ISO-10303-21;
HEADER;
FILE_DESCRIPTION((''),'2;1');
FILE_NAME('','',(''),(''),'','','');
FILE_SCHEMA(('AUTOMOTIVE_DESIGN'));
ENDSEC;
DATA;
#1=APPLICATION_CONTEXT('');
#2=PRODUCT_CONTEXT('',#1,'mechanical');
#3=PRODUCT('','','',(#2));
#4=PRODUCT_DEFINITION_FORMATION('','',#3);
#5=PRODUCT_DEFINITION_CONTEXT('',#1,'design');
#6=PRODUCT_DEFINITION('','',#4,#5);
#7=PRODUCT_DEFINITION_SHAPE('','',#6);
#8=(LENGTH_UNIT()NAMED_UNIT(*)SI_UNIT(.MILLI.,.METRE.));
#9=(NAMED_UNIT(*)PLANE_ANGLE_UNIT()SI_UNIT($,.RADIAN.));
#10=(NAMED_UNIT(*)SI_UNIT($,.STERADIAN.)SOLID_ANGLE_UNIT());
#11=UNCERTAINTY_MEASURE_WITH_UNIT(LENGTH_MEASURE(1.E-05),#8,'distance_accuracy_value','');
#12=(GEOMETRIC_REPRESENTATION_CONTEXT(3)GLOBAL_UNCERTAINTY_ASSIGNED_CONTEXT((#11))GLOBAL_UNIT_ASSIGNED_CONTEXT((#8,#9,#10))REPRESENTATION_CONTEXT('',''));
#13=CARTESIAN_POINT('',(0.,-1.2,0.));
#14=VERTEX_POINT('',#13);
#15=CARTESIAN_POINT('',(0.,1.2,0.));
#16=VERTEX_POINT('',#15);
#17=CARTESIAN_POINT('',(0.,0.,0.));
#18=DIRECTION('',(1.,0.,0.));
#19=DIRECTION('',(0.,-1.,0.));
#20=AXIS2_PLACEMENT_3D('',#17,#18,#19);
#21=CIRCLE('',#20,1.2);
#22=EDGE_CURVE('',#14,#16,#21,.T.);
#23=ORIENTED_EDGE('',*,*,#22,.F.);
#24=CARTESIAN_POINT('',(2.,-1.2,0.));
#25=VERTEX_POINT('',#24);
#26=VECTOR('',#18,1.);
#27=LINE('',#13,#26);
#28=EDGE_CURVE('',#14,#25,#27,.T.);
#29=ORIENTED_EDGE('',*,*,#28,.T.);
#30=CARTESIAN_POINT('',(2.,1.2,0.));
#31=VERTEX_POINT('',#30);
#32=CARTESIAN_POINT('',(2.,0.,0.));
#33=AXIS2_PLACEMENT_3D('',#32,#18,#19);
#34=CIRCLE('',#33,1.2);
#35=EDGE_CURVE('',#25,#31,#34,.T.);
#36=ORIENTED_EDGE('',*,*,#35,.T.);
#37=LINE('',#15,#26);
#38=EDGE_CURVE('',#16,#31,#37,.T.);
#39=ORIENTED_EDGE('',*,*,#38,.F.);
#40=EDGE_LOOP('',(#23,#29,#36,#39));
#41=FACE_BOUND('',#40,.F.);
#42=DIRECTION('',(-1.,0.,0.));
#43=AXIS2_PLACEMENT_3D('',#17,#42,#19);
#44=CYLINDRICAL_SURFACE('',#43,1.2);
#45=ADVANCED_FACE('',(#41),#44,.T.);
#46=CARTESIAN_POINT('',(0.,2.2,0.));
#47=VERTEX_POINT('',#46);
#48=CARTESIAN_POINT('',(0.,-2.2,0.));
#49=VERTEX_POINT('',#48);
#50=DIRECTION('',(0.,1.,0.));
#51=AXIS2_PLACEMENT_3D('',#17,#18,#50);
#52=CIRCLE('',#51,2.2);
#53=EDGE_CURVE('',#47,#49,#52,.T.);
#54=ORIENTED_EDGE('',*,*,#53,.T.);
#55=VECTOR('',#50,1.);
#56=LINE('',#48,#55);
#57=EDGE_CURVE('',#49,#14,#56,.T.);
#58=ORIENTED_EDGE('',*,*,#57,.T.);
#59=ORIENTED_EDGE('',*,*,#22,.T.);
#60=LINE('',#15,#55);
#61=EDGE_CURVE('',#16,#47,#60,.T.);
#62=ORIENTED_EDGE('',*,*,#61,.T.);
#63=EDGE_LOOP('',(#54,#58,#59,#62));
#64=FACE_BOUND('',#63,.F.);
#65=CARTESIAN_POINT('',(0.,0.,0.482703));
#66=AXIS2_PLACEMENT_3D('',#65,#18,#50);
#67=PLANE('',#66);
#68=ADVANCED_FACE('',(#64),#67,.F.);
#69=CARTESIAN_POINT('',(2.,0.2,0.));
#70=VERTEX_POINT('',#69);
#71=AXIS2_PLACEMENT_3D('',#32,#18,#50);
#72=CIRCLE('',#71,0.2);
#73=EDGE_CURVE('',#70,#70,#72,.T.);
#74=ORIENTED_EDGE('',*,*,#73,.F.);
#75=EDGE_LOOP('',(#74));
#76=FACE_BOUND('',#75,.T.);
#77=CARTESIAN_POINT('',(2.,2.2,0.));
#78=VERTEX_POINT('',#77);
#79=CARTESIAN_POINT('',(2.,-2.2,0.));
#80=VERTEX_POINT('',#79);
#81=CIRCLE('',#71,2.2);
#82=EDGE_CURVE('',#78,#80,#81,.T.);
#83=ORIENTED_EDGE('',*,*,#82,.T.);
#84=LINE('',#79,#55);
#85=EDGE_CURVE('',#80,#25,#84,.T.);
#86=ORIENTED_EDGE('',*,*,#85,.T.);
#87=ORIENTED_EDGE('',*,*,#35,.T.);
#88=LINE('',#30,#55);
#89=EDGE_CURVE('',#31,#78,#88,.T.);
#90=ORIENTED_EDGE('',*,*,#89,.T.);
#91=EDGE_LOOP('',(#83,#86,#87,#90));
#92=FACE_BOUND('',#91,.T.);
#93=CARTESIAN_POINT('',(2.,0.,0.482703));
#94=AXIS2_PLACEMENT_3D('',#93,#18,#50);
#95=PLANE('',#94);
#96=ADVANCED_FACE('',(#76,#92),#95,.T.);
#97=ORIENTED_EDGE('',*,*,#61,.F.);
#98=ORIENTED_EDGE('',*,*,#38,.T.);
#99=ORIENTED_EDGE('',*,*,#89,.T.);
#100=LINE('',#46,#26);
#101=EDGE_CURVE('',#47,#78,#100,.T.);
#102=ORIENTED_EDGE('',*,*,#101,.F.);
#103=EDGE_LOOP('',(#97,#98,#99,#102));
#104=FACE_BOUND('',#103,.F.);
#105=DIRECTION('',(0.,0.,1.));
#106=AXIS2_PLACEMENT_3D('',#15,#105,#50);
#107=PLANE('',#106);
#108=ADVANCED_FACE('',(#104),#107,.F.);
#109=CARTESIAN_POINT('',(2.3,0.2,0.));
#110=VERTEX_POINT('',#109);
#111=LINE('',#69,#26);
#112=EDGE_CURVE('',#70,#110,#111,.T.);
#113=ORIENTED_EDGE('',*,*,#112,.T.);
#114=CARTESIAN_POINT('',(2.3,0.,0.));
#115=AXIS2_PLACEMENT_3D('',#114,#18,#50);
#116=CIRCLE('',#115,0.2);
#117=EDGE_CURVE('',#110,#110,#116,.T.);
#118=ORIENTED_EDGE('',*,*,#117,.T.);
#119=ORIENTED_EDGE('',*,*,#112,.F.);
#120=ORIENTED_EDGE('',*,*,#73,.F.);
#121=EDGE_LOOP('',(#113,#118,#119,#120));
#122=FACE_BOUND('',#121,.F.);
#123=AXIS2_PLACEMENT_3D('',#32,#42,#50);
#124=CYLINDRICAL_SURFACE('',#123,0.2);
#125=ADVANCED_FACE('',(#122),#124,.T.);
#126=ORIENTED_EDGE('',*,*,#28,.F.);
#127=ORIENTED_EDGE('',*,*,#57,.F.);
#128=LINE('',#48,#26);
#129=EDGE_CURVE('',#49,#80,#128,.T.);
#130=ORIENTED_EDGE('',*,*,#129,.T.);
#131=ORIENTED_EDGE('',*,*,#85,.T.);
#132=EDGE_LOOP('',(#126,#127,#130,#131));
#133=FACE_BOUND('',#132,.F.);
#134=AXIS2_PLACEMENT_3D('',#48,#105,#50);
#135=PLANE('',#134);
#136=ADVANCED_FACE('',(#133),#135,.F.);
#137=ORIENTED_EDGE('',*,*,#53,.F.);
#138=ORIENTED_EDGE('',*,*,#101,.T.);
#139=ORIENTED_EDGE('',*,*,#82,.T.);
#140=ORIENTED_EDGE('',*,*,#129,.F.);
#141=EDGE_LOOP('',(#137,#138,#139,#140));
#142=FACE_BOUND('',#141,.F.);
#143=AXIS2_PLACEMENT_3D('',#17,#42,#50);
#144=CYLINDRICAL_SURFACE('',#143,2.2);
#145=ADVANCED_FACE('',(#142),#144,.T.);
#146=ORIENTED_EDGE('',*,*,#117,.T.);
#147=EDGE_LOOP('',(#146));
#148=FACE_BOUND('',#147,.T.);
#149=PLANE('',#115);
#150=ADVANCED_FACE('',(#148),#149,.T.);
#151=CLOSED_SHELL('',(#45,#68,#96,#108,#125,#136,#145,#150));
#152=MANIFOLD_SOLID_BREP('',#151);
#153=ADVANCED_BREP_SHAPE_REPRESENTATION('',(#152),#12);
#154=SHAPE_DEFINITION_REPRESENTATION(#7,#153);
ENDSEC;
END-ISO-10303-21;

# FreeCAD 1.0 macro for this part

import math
import FreeCAD as App
import Part
import Sketcher

V = App.Vector
Q = App.Units.Quantity

doc = App.newDocument("Part")
body = doc.addObject("PartDesign::Body", "Body")

sketch1 = body.newObject("Sketcher::SketchObject", "Sketch")
sketch1.AttachmentSupport = (doc.getObject("YZ_Plane"), [""])
sketch1.MapMode = "FlatFace"
sketch1.addGeometry(Part.ArcOfCircle(Part.Circle(V(0, 0, 0), V(0, 0, 1), 2.2), math.radians(0), math.radians(180)), False)
sketch1.addGeometry(Part.LineSegment(V(-2.2, 0, 0), V(-1.2, 0, 0)), False)
sketch1.addGeometry(Part.ArcOfCircle(Part.Circle(V(0, 0, 0), V(0, 0, 1), 1.2), math.radians(180), math.radians(360)), False)
sketch1.addGeometry(Part.LineSegment(V(1.2, 0, 0), V(2.2, 0, 0)), False)
sketch1.addConstraint(Sketcher.Constraint("Coincident", 0, 2, 1, 1))
sketch1.addConstraint(Sketcher.Constraint("Coincident", 1, 2, 2, 1))
sketch1.addConstraint(Sketcher.Constraint("Coincident", 2, 2, 3, 1))
sketch1.addConstraint(Sketcher.Constraint("Coincident", 3, 2, 0, 1))
sketch1.addConstraint(Sketcher.Constraint("Horizontal", 1))
sketch1.addConstraint(Sketcher.Constraint("Horizontal", 3))
sketch1.addConstraint(Sketcher.Constraint("Coincident", 0, 3, -1, 1))
sketch1.addConstraint(Sketcher.Constraint("Coincident", 2, 3, -1, 1))
sketch1.addConstraint(Sketcher.Constraint("PointOnObject", 0, 2, -1))
sketch1.addConstraint(Sketcher.Constraint("PointOnObject", 2, 2, -1))
sketch1.addConstraint(Sketcher.Constraint("Radius", 0, Q("2.2 mm")))
sketch1.addConstraint(Sketcher.Constraint("Radius", 2, Q("1.2 mm")))
pad1 = body.newObject("PartDesign::Pad", "Pad")
pad1.Profile = sketch1
pad1.Length = 2

sketch2 = body.newObject("Sketcher::SketchObject", "Sketch001")
sketch2.AttachmentSupport = (doc.getObject("YZ_Plane"), [""])
sketch2.MapMode = "FlatFace"
sketch2.AttachmentOffset = App.Placement(V(0, 0, 2), App.Rotation())
sketch2.addGeometry(Part.Circle(V(0, 0, 0), V(0, 0, 1), 0.2), False)
sketch2.addConstraint(Sketcher.Constraint("Coincident", 0, 3, -1, 1))
sketch2.addConstraint(Sketcher.Constraint("Diameter", 0, Q("0.4 mm")))
pad2 = body.newObject("PartDesign::Pad", "Pad001")
pad2.Profile = sketch2
pad2.Length = 0.3

doc.recompute()
